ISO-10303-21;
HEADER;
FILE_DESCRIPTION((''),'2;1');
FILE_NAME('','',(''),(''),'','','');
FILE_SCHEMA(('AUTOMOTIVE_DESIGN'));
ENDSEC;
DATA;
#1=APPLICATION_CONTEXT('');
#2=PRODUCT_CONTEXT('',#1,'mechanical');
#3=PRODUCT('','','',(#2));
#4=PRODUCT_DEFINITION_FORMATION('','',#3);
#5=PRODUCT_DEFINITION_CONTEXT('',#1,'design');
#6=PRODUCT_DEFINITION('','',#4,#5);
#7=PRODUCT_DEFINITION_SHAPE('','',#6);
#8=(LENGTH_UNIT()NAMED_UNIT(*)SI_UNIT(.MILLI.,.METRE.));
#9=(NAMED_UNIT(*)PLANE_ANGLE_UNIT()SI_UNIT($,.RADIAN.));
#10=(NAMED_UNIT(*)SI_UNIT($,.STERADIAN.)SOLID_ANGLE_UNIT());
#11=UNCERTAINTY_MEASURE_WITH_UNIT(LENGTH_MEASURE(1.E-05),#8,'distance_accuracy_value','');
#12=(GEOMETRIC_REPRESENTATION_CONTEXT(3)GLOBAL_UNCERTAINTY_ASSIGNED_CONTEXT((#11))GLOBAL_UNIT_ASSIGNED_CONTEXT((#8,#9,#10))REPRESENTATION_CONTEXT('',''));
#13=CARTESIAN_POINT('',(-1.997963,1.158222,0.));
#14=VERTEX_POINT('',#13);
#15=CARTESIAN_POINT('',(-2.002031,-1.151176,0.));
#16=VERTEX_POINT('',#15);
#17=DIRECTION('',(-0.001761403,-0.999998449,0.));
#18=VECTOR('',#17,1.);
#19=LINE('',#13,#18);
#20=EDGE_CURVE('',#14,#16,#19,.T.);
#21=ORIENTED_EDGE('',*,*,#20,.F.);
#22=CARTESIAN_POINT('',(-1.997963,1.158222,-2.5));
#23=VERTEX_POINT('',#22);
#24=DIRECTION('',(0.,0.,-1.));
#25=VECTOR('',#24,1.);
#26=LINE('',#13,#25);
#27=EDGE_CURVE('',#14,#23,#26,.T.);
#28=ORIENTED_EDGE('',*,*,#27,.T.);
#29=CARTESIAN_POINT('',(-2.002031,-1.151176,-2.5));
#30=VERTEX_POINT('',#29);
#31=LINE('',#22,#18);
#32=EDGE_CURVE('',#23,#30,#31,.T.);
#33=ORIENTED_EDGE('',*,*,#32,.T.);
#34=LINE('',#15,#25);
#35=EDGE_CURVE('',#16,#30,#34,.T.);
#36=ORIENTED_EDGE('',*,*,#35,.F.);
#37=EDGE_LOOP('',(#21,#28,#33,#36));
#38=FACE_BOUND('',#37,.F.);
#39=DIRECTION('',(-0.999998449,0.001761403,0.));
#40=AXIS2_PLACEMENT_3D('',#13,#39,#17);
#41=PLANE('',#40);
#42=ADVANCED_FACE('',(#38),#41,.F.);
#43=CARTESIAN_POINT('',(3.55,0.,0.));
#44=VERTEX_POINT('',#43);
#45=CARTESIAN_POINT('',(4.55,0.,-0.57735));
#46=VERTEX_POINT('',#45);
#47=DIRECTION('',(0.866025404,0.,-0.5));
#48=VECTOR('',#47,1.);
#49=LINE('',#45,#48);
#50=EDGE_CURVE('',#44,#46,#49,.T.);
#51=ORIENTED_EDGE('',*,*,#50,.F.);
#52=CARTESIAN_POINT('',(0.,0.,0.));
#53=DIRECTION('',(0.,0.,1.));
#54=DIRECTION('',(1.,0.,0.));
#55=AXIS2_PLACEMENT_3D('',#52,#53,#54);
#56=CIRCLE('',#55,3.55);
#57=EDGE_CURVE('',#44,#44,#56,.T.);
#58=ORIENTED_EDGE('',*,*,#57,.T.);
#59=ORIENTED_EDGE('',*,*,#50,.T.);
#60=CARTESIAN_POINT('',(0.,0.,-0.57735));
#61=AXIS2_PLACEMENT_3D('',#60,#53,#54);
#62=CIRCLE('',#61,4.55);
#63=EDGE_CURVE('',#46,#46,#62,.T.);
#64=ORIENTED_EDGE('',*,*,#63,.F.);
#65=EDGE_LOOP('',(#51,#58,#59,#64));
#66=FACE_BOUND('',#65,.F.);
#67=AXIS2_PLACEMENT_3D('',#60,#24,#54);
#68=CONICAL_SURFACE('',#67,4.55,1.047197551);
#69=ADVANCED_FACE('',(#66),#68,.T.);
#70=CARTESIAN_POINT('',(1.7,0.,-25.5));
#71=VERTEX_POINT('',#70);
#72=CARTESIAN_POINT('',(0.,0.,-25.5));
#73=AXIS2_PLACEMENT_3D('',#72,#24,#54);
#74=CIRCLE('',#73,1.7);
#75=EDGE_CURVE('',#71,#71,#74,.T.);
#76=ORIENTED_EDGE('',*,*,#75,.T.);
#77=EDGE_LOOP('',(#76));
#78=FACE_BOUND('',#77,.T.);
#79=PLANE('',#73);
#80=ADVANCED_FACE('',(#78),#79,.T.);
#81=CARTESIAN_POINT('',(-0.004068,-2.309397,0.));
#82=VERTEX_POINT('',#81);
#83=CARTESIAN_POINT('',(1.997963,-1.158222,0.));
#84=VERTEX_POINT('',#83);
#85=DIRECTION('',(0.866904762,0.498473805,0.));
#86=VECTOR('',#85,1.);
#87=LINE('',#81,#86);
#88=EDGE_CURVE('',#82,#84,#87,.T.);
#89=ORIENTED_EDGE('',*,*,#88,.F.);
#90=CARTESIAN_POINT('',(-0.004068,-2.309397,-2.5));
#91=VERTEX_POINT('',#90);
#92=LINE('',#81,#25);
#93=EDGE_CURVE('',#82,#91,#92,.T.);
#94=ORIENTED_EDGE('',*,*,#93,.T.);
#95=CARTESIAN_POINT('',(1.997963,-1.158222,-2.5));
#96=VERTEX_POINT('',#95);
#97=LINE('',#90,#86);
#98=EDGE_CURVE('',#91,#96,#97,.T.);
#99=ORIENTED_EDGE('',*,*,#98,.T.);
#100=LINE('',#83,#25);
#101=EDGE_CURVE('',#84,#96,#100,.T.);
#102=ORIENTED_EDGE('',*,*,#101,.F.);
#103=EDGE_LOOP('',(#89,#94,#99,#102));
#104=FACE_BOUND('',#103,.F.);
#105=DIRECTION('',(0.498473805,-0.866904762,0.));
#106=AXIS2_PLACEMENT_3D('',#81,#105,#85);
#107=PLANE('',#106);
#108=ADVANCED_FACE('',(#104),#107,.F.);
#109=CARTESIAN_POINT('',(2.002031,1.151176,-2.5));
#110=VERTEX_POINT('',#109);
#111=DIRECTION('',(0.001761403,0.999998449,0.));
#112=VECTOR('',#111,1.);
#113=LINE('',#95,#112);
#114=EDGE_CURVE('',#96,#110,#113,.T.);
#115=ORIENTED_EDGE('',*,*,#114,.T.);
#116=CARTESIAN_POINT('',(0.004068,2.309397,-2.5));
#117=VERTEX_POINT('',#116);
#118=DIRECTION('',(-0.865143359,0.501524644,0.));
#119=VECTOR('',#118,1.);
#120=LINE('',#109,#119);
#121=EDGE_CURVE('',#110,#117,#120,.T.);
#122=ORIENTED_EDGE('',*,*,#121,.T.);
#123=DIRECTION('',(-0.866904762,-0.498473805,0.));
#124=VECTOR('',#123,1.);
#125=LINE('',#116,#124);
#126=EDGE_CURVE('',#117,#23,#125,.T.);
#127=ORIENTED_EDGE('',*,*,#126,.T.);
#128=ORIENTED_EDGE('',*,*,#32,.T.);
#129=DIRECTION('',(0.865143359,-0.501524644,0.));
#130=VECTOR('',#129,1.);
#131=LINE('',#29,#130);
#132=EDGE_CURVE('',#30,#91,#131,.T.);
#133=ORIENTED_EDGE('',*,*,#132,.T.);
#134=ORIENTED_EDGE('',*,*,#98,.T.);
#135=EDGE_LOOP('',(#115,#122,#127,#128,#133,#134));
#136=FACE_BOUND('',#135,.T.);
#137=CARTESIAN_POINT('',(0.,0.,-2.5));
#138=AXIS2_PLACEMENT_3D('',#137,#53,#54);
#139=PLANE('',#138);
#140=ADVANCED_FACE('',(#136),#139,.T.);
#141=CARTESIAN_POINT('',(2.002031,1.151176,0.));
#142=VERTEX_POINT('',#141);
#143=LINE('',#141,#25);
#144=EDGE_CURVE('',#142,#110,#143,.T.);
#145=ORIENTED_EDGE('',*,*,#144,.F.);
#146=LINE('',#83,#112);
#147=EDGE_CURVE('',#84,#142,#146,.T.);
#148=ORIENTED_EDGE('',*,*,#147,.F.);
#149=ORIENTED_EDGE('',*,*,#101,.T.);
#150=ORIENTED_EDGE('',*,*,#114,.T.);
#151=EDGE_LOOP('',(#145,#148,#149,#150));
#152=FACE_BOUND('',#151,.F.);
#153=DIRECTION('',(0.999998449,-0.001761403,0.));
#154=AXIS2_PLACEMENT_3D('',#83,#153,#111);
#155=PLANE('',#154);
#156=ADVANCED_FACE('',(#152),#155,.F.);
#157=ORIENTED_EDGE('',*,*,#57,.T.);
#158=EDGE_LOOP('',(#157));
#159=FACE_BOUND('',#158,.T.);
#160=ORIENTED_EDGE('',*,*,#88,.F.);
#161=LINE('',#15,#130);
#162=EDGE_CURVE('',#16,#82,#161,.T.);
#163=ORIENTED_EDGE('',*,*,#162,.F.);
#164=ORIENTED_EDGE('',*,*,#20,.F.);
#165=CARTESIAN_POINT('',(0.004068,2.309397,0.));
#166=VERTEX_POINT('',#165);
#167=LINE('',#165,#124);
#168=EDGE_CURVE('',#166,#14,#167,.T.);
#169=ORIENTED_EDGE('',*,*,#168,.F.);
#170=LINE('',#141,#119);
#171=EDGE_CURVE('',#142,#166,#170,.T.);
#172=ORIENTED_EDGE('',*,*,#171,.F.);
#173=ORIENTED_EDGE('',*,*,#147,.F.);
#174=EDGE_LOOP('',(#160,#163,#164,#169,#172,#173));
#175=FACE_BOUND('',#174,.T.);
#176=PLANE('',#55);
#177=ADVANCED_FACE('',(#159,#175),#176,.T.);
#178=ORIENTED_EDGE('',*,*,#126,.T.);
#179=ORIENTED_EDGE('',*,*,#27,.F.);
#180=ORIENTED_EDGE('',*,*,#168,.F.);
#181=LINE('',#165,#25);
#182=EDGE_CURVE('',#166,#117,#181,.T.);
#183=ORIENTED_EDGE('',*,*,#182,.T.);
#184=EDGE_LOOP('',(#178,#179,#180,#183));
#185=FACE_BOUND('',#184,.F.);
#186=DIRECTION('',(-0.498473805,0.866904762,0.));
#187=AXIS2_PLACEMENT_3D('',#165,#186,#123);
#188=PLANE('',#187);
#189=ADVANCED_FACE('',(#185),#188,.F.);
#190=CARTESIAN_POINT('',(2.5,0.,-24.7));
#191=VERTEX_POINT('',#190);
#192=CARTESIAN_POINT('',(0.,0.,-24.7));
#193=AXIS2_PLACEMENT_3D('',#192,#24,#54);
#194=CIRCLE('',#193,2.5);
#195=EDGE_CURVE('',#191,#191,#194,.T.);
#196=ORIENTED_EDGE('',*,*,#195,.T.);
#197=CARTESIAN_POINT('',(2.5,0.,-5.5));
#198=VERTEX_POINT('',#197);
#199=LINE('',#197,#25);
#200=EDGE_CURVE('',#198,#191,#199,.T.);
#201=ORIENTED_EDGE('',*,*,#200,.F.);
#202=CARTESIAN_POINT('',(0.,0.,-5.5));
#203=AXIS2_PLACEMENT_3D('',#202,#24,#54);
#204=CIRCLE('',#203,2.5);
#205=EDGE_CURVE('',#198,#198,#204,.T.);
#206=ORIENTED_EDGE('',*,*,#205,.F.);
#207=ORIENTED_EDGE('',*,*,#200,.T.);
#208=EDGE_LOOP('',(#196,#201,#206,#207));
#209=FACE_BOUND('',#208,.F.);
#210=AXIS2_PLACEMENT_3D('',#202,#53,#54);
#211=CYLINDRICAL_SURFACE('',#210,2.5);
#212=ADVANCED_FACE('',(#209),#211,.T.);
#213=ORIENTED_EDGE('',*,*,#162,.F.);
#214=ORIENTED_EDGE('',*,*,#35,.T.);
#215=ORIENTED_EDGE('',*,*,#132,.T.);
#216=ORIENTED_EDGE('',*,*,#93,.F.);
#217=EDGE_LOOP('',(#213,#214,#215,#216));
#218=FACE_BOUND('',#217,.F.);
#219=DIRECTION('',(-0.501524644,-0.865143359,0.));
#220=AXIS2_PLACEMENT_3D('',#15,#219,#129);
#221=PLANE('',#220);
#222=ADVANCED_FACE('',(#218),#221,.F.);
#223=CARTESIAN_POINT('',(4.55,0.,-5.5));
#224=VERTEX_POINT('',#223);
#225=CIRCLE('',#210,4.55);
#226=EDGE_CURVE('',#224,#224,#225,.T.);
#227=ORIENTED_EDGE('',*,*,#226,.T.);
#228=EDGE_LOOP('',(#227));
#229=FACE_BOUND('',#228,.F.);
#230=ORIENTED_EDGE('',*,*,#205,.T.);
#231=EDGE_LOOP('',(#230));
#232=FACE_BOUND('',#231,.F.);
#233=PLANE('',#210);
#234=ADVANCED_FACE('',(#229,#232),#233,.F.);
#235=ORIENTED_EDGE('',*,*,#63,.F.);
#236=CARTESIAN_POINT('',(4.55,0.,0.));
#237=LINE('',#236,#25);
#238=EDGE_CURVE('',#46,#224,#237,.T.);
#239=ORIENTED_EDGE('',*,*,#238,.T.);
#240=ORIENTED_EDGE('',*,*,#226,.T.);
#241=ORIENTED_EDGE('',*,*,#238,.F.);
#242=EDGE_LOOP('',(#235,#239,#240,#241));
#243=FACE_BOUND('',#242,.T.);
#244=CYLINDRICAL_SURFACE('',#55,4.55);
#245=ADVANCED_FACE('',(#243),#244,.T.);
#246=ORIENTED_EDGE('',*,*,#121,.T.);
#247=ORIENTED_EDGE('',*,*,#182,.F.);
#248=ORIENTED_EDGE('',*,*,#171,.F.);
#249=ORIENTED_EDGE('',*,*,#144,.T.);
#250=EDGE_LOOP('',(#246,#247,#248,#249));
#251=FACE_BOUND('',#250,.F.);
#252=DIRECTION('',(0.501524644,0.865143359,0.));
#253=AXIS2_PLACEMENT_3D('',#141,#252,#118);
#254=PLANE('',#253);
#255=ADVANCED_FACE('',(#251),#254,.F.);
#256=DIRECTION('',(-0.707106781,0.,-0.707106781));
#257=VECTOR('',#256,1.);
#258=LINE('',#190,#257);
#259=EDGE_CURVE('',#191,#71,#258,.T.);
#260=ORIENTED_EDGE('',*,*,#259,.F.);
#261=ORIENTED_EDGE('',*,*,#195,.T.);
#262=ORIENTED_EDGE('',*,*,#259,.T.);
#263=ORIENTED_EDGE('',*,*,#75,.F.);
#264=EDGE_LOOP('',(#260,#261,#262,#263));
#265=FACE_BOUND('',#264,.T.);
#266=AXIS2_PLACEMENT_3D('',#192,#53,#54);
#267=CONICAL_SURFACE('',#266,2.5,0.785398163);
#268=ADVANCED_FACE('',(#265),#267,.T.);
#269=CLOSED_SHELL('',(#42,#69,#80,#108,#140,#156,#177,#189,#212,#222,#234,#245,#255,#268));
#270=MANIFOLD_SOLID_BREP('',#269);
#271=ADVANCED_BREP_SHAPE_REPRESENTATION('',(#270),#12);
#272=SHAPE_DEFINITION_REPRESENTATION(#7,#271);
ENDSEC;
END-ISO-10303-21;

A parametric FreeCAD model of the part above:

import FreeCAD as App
import Part
import Sketcher
from FreeCAD import Vector


def edges_at(feature, points):
    """Names of the edges that pass closest to the given points."""
    edges = feature.Shape.Edges
    near = lambda p: min(range(len(edges)), key=lambda i: edges[i].distToShape(Part.Vertex(*p))[0])
    return sorted({f"Edge{near(p) + 1}" for p in points})


def add_polygon(sketch, points):
    """Adds a closed chain of lines whose ends are joined by coincident constraints."""
    first, n = sketch.GeometryCount, len(points)
    for a, b in zip(points, points[1:] + points[:1]):
        sketch.addGeometry(Part.LineSegment(App.Vector(*a, 0), App.Vector(*b, 0)), False)
    for i in range(n):
        sketch.addConstraint(Sketcher.Constraint("Coincident", first + i, 2, first + (i + 1) % n, 1))

doc = App.newDocument("Part")
body = doc.addObject("PartDesign::Body", "Body")

# Sketch on XY plane
sketch1 = body.newObject("Sketcher::SketchObject", "Sketch")
sketch1.AttachmentSupport = (doc.getObject("XY_Plane"), [""])
sketch1.MapMode = "FlatFace"
sketch1.addGeometry(Part.Circle(Vector(0, 0, 0), Vector(0, 0, 1), 4.55), False)
sketch1.addConstraint([
    Sketcher.Constraint("Coincident", 0, 3, -1, 1),
    Sketcher.Constraint("Diameter", 0, 9.1),
])
pad1 = body.newObject("PartDesign::Pad", "Pad")
pad1.Profile = sketch1
pad1.Length = 5.5
pad1.Reversed = True

# Sketch on XY plane
sketch2 = body.newObject("Sketcher::SketchObject", "Sketch001")
sketch2.AttachmentSupport = (doc.getObject("XY_Plane"), [""])
sketch2.MapMode = "FlatFace"
sketch2.AttachmentOffset = App.Placement(Vector(0, 0, -5.5), App.Rotation())
sketch2.addGeometry(Part.Circle(Vector(0, 0, 0), Vector(0, 0, 1), 2.5), False)
sketch2.addConstraint([
    Sketcher.Constraint("Coincident", 0, 3, -1, 1),
    Sketcher.Constraint("Diameter", 0, 5.0),
])
pad2 = body.newObject("PartDesign::Pad", "Pad001")
pad2.Profile = sketch2
pad2.Length = 20
pad2.Reversed = True

# Sketch on XY plane
sketch3 = body.newObject("Sketcher::SketchObject", "Sketch002")
sketch3.AttachmentSupport = (doc.getObject("XY_Plane"), [""])
sketch3.MapMode = "FlatFace"
add_polygon(sketch3, [(-0.004068, -2.309397), (1.997963, -1.158222), (2.002031, 1.151176), (0.004068, 2.309397), (-1.997963, 1.158222), (-2.002031, -1.151176)])  # lines 0-5
sketch3.addConstraint([
    Sketcher.Constraint("Symmetric", 0, 2, 3, 2, -1, 1),
    Sketcher.Constraint("Symmetric", 1, 2, 4, 2, -1, 1),
    Sketcher.Constraint("Symmetric", 2, 2, 5, 2, -1, 1),
    Sketcher.Constraint("Equal", 0, 1),
    Sketcher.Constraint("Equal", 1, 2),
    Sketcher.Constraint("Distance", 0, 2.309401),
    Sketcher.Constraint("DistanceX", 4, 2, 2, 2, 2.006099),
    Sketcher.Constraint("DistanceY", 0, 2, -1, 1, 1.158222),
    Sketcher.Constraint("DistanceX", -1, 1, 1, 2, 2.002031),
])
pocket1 = body.newObject("PartDesign::Pocket", "Pocket")
pocket1.Profile = sketch3
pocket1.Length = 2.5
doc.recompute()

chamfer = body.newObject("PartDesign::Chamfer", "Chamfer")
chamfer.Base = (pocket1, edges_at(pocket1, [(-4.55, 0, 0)]))
chamfer.ChamferType = "Two distances"
chamfer.Size = 1
chamfer.Size2 = 0.57735
chamfer.FlipDirection = True
doc.recompute()

chamfer2 = body.newObject("PartDesign::Chamfer", "Chamfer001")
chamfer2.Base = (chamfer, edges_at(chamfer, [(-2.5, 0, -25.5)]))
chamfer2.Size = 0.8

doc.recompute()
